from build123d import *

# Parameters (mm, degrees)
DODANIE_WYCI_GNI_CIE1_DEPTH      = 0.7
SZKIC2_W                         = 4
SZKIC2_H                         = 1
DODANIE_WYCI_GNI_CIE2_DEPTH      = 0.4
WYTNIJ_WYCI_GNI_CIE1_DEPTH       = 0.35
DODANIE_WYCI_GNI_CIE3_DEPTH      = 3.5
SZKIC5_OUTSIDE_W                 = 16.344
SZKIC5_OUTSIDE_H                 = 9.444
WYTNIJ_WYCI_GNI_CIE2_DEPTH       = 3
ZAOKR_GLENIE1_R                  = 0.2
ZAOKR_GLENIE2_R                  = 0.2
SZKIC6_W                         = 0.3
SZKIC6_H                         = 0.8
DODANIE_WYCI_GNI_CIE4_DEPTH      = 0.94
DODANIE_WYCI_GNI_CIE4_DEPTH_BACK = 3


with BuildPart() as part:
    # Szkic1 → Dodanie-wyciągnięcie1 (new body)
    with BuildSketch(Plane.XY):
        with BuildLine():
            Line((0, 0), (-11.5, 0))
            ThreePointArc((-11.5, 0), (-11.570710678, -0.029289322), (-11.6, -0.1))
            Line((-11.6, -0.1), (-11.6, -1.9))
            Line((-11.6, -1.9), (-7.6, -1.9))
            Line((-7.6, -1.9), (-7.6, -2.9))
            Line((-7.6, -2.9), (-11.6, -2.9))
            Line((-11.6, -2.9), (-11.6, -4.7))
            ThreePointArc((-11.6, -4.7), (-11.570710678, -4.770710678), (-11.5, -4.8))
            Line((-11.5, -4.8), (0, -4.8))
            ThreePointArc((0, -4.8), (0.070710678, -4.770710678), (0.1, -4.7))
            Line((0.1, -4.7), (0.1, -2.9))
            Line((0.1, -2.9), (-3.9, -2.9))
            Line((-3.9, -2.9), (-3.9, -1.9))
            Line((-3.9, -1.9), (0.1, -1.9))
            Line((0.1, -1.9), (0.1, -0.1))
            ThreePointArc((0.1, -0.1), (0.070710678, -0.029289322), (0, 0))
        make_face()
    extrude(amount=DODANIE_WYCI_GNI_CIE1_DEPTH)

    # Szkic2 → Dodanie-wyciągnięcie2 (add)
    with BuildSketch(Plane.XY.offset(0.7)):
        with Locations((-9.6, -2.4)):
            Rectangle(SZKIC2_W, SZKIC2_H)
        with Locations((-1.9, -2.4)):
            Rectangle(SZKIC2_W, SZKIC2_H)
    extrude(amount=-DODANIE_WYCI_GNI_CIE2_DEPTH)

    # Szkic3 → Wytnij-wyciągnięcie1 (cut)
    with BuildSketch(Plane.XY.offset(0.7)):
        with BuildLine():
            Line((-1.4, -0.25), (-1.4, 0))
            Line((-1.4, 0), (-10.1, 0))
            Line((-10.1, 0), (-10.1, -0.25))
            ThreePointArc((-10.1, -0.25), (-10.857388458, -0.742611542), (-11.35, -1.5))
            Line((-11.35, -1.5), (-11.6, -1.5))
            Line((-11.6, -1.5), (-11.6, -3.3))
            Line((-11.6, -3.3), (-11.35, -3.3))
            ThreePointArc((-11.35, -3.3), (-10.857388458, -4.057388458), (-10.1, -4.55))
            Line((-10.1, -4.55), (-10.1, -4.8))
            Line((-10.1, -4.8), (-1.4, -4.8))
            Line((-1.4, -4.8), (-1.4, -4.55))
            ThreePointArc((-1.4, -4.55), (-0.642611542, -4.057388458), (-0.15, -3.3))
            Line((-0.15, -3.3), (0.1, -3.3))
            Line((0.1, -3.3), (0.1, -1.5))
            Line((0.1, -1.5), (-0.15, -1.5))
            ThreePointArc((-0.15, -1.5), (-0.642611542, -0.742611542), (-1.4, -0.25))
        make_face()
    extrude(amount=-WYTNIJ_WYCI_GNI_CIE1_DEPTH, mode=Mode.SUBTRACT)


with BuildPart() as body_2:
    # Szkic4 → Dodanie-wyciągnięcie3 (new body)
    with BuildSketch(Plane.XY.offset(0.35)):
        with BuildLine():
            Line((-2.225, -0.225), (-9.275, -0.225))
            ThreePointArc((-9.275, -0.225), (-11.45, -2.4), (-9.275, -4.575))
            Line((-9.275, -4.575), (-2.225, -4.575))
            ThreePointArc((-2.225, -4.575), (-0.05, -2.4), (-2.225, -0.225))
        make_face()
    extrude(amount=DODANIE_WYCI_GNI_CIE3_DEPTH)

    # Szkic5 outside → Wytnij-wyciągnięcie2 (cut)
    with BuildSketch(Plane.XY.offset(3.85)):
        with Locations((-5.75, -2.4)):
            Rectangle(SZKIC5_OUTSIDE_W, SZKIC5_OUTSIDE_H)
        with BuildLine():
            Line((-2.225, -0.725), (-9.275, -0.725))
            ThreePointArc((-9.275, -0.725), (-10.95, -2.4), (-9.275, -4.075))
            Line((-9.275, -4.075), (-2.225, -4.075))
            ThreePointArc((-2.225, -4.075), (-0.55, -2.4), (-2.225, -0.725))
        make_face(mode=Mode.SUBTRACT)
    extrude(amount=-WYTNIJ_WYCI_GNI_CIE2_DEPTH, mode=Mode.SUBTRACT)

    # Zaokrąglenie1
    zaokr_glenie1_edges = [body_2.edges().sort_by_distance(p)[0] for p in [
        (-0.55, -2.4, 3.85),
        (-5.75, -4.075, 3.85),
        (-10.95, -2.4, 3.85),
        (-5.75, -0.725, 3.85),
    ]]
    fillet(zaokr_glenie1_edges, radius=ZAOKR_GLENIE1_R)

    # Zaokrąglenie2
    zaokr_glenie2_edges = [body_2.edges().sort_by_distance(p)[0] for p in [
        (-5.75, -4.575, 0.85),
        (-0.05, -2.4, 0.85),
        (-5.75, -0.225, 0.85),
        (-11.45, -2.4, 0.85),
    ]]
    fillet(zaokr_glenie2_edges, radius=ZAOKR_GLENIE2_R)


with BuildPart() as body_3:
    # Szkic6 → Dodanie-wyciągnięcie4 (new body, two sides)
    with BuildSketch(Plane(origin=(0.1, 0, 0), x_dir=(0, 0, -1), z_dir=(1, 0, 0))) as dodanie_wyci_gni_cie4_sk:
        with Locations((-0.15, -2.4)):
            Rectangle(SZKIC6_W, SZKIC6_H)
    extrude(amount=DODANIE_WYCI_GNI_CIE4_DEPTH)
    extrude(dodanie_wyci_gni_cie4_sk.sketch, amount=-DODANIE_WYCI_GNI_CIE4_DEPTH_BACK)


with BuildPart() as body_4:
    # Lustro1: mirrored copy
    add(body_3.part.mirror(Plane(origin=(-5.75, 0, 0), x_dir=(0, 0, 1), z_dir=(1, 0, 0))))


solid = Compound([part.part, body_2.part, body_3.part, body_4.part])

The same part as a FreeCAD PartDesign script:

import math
import FreeCAD as App
import Part
import Sketcher
Q = App.Units.Quantity


def edges_at(feature, points):
    """Names of the edges that pass closest to the given points."""
    edges = feature.Shape.Edges
    near = lambda p: min(range(len(edges)), key=lambda i: edges[i].distToShape(Part.Vertex(*p))[0])
    return sorted({f"Edge{near(p) + 1}" for p in points})

doc = App.newDocument("Part")
body = doc.addObject("PartDesign::Body", "Body")

# Sketch on XY plane
sketch1 = doc.addObject("Sketcher::SketchObject", "Sketch")
body.addObject(sketch1)
sketch1.AttachmentSupport = (doc.XY_Plane, [""])
sketch1.MapMode = "FlatFace"
sketch1.addGeometry([
    Part.LineSegment(App.Vector(0, 0, 0), App.Vector(-11.5, 0, 0)),  # 0
    Part.ArcOfCircle(Part.Circle(App.Vector(-11.5, -0.1, 0), App.Vector(0, 0, 1), 0.1), math.radians(90), math.radians(180)),  # 1
    Part.LineSegment(App.Vector(-11.6, -0.1, 0), App.Vector(-11.6, -1.9, 0)),  # 2
    Part.LineSegment(App.Vector(-11.6, -1.9, 0), App.Vector(-7.6, -1.9, 0)),  # 3
    Part.LineSegment(App.Vector(-7.6, -1.9, 0), App.Vector(-7.6, -2.9, 0)),  # 4
    Part.LineSegment(App.Vector(-7.6, -2.9, 0), App.Vector(-11.6, -2.9, 0)),  # 5
    Part.LineSegment(App.Vector(-11.6, -2.9, 0), App.Vector(-11.6, -4.7, 0)),  # 6
    Part.ArcOfCircle(Part.Circle(App.Vector(-11.5, -4.7, 0), App.Vector(0, 0, 1), 0.1), math.radians(180), math.radians(270)),  # 7
    Part.LineSegment(App.Vector(-11.5, -4.8, 0), App.Vector(0, -4.8, 0)),  # 8
    Part.ArcOfCircle(Part.Circle(App.Vector(0, -4.7, 0), App.Vector(0, 0, 1), 0.1), math.radians(-90), math.radians(0)),  # 9
    Part.LineSegment(App.Vector(0.1, -4.7, 0), App.Vector(0.1, -2.9, 0)),  # 10
    Part.LineSegment(App.Vector(0.1, -2.9, 0), App.Vector(-3.9, -2.9, 0)),  # 11
    Part.LineSegment(App.Vector(-3.9, -2.9, 0), App.Vector(-3.9, -1.9, 0)),  # 12
    Part.LineSegment(App.Vector(-3.9, -1.9, 0), App.Vector(0.1, -1.9, 0)),  # 13
    Part.LineSegment(App.Vector(0.1, -1.9, 0), App.Vector(0.1, -0.1, 0)),  # 14
    Part.ArcOfCircle(Part.Circle(App.Vector(0, -0.1, 0), App.Vector(0, 0, 1), 0.1), math.radians(0), math.radians(90)),  # 15
], False)
sketch1.addConstraint([
    Sketcher.Constraint("Tangent", 0, 2, 1, 1),
    Sketcher.Constraint("Tangent", 1, 2, 2, 1),
    Sketcher.Constraint("Coincident", 2, 2, 3, 1),
    Sketcher.Constraint("Coincident", 3, 2, 4, 1),
    Sketcher.Constraint("Coincident", 4, 2, 5, 1),
    Sketcher.Constraint("Coincident", 5, 2, 6, 1),
    Sketcher.Constraint("Tangent", 6, 2, 7, 1),
    Sketcher.Constraint("Tangent", 7, 2, 8, 1),
    Sketcher.Constraint("Tangent", 8, 2, 9, 1),
    Sketcher.Constraint("Tangent", 9, 2, 10, 1),
    Sketcher.Constraint("Coincident", 10, 2, 11, 1),
    Sketcher.Constraint("Coincident", 11, 2, 12, 1),
    Sketcher.Constraint("Coincident", 12, 2, 13, 1),
    Sketcher.Constraint("Coincident", 13, 2, 14, 1),
    Sketcher.Constraint("Tangent", 14, 2, 15, 1),
    Sketcher.Constraint("Tangent", 15, 2, 0, 1),
    Sketcher.Constraint("Horizontal", 0),
    Sketcher.Constraint("Vertical", 2),
    Sketcher.Constraint("Horizontal", 3),
    Sketcher.Constraint("Vertical", 4),
    Sketcher.Constraint("Horizontal", 5),
    Sketcher.Constraint("Vertical", 6),
    Sketcher.Constraint("Horizontal", 8),
    Sketcher.Constraint("Vertical", 10),
    Sketcher.Constraint("Horizontal", 11),
    Sketcher.Constraint("Vertical", 12),
    Sketcher.Constraint("Horizontal", 13),
    Sketcher.Constraint("Vertical", 14),
    Sketcher.Constraint("Coincident", 15, 2, -1, 1),
    Sketcher.Constraint("Equal", 1, 7),
    Sketcher.Constraint("Equal", 7, 9),
    Sketcher.Constraint("Equal", 9, 15),
    Sketcher.Constraint("PointOnObject", 9, 3, -2),
    Sketcher.Constraint("Horizontal", 5, 2, 10, 2),
    Sketcher.Constraint("Horizontal", 3, 2, 12, 2),
    Sketcher.Constraint("Vertical", 1, 3, 7, 3),
    Sketcher.Constraint("Equal", 5, 11),
    Sketcher.Constraint("Equal", 2, 6),
    Sketcher.Constraint("Radius", 1, Q("0.1 mm")),
    Sketcher.Constraint("DistanceX", 3, 1, 3, 2, Q("4 mm")),
    Sketcher.Constraint("DistanceY", 4, 2, 4, 1, Q("1 mm")),
    Sketcher.Constraint("DistanceX", 0, 2, 0, 1, Q("11.5 mm")),
    Sketcher.Constraint("DistanceY", 2, 2, 2, 1, Q("1.8 mm")),
])
pad1 = doc.addObject("PartDesign::Pad", "Pad")
body.addObject(pad1)
pad1.Profile = sketch1
pad1.Length = 0.7

# Sketch on XY plane
sketch2 = doc.addObject("Sketcher::SketchObject", "Sketch001")
body.addObject(sketch2)
sketch2.AttachmentSupport = (doc.XY_Plane, [""])
sketch2.MapMode = "FlatFace"
sketch2.AttachmentOffset = App.Placement(App.Vector(0, 0, 0.7), App.Rotation())
sketch2.addGeometry([
    Part.LineSegment(App.Vector(-11.6, -1.9, 0), App.Vector(-11.6, -2.9, 0)),  # 0
    Part.LineSegment(App.Vector(-11.6, -2.9, 0), App.Vector(-7.6, -2.9, 0)),  # 1
    Part.LineSegment(App.Vector(-7.6, -2.9, 0), App.Vector(-7.6, -1.9, 0)),  # 2
    Part.LineSegment(App.Vector(-7.6, -1.9, 0), App.Vector(-11.6, -1.9, 0)),  # 3
    Part.LineSegment(App.Vector(-3.9, -1.9, 0), App.Vector(-3.9, -2.9, 0)),  # 4
    Part.LineSegment(App.Vector(-3.9, -2.9, 0), App.Vector(0.1, -2.9, 0)),  # 5
    Part.LineSegment(App.Vector(0.1, -2.9, 0), App.Vector(0.1, -1.9, 0)),  # 6
    Part.LineSegment(App.Vector(0.1, -1.9, 0), App.Vector(-3.9, -1.9, 0)),  # 7
], False)
sketch2.addConstraint([
    Sketcher.Constraint("Coincident", 0, 2, 1, 1),
    Sketcher.Constraint("Coincident", 1, 2, 2, 1),
    Sketcher.Constraint("Coincident", 2, 2, 3, 1),
    Sketcher.Constraint("Coincident", 3, 2, 0, 1),
    Sketcher.Constraint("Coincident", 4, 2, 5, 1),
    Sketcher.Constraint("Coincident", 5, 2, 6, 1),
    Sketcher.Constraint("Coincident", 6, 2, 7, 1),
    Sketcher.Constraint("Coincident", 7, 2, 4, 1),
    Sketcher.Constraint("Vertical", 0),
    Sketcher.Constraint("Horizontal", 1),
    Sketcher.Constraint("Vertical", 2),
    Sketcher.Constraint("Horizontal", 3),
    Sketcher.Constraint("Vertical", 4),
    Sketcher.Constraint("Horizontal", 5),
    Sketcher.Constraint("Vertical", 6),
    Sketcher.Constraint("Horizontal", 7),
    Sketcher.Constraint("Horizontal", 1, 2, 4, 2),
    Sketcher.Constraint("Horizontal", 3, 2, 6, 2),
    Sketcher.Constraint("Equal", 3, 5),
    Sketcher.Constraint("DistanceX", 1, 1, 1, 2, Q("4 mm")),
    Sketcher.Constraint("DistanceY", 0, 2, 0, 1, Q("1 mm")),
    Sketcher.Constraint("DistanceX", 0, 2, -1, 1, Q("11.6 mm")),
    Sketcher.Constraint("DistanceY", 0, 2, -1, 1, Q("2.9 mm")),
    Sketcher.Constraint("DistanceX", 4, 2, -1, 1, Q("3.9 mm")),
])
pad2 = doc.addObject("PartDesign::Pad", "Pad001")
body.addObject(pad2)
pad2.Profile = sketch2
pad2.Length = 0.4
pad2.Reversed = True

# Sketch on XY plane
sketch3 = doc.addObject("Sketcher::SketchObject", "Sketch002")
body.addObject(sketch3)
sketch3.AttachmentSupport = (doc.XY_Plane, [""])
sketch3.MapMode = "FlatFace"
sketch3.AttachmentOffset = App.Placement(App.Vector(0, 0, 0.7), App.Rotation())
sketch3.addGeometry([
    Part.LineSegment(App.Vector(-1.4, -0.25, 0), App.Vector(-1.4, 0, 0)),  # 0
    Part.LineSegment(App.Vector(-1.4, 0, 0), App.Vector(-10.1, 0, 0)),  # 1
    Part.LineSegment(App.Vector(-10.1, 0, 0), App.Vector(-10.1, -0.25, 0)),  # 2
    Part.ArcOfCircle(Part.Circle(App.Vector(-9.315896, -2.284104, 0), App.Vector(0, 0, 1), 2.18), math.radians(111.080599), math.radians(158.919401)),  # 3
    Part.LineSegment(App.Vector(-11.35, -1.5, 0), App.Vector(-11.6, -1.5, 0)),  # 4
    Part.LineSegment(App.Vector(-11.6, -1.5, 0), App.Vector(-11.6, -3.3, 0)),  # 5
    Part.LineSegment(App.Vector(-11.6, -3.3, 0), App.Vector(-11.35, -3.3, 0)),  # 6
    Part.ArcOfCircle(Part.Circle(App.Vector(-9.315896, -2.515896, 0), App.Vector(0, 0, 1), 2.18), math.radians(-158.919401), math.radians(-111.080599)),  # 7
    Part.LineSegment(App.Vector(-10.1, -4.55, 0), App.Vector(-10.1, -4.8, 0)),  # 8
    Part.LineSegment(App.Vector(-10.1, -4.8, 0), App.Vector(-1.4, -4.8, 0)),  # 9
    Part.LineSegment(App.Vector(-1.4, -4.8, 0), App.Vector(-1.4, -4.55, 0)),  # 10
    Part.ArcOfCircle(Part.Circle(App.Vector(-2.184104, -2.515896, 0), App.Vector(0, 0, 1), 2.18), math.radians(-68.919401), math.radians(-21.080599)),  # 11
    Part.LineSegment(App.Vector(-0.15, -3.3, 0), App.Vector(0.1, -3.3, 0)),  # 12
    Part.LineSegment(App.Vector(0.1, -3.3, 0), App.Vector(0.1, -1.5, 0)),  # 13
    Part.LineSegment(App.Vector(0.1, -1.5, 0), App.Vector(-0.15, -1.5, 0)),  # 14
    Part.ArcOfCircle(Part.Circle(App.Vector(-2.184104, -2.284104, 0), App.Vector(0, 0, 1), 2.18), math.radians(21.080599), math.radians(68.919401)),  # 15
], False)
sketch3.addConstraint([
    Sketcher.Constraint("Coincident", 0, 2, 1, 1),
    Sketcher.Constraint("Coincident", 1, 2, 2, 1),
    Sketcher.Constraint("Coincident", 2, 2, 3, 1),
    Sketcher.Constraint("Coincident", 3, 2, 4, 1),
    Sketcher.Constraint("Coincident", 4, 2, 5, 1),
    Sketcher.Constraint("Coincident", 5, 2, 6, 1),
    Sketcher.Constraint("Coincident", 6, 2, 7, 1),
    Sketcher.Constraint("Coincident", 7, 2, 8, 1),
    Sketcher.Constraint("Coincident", 8, 2, 9, 1),
    Sketcher.Constraint("Coincident", 9, 2, 10, 1),
    Sketcher.Constraint("Coincident", 10, 2, 11, 1),
    Sketcher.Constraint("Coincident", 11, 2, 12, 1),
    Sketcher.Constraint("Coincident", 12, 2, 13, 1),
    Sketcher.Constraint("Coincident", 13, 2, 14, 1),
    Sketcher.Constraint("Coincident", 14, 2, 15, 1),
    Sketcher.Constraint("Coincident", 15, 2, 0, 1),
    Sketcher.Constraint("Vertical", 0),
    Sketcher.Constraint("Horizontal", 1),
    Sketcher.Constraint("Vertical", 2),
    Sketcher.Constraint("Horizontal", 4),
    Sketcher.Constraint("Vertical", 5),
    Sketcher.Constraint("Horizontal", 6),
    Sketcher.Constraint("Vertical", 8),
    Sketcher.Constraint("Horizontal", 9),
    Sketcher.Constraint("Vertical", 10),
    Sketcher.Constraint("Horizontal", 12),
    Sketcher.Constraint("Vertical", 13),
    Sketcher.Constraint("Horizontal", 14),
    Sketcher.Constraint("Equal", 3, 7),
    Sketcher.Constraint("Equal", 7, 11),
    Sketcher.Constraint("Equal", 11, 15),
    Sketcher.Constraint("PointOnObject", 0, 2, -1),
    Sketcher.Constraint("Horizontal", 7, 3, 11, 3),
    Sketcher.Constraint("Horizontal", 3, 3, 15, 3),
    Sketcher.Constraint("Horizontal", 7, 2, 10, 2),
    Sketcher.Constraint("Horizontal", 6, 2, 11, 2),
    Sketcher.Constraint("Horizontal", 4, 2, 13, 2),
    Sketcher.Constraint("Horizontal", 2, 2, 15, 2),
    Sketcher.Constraint("Vertical", 3, 3, 7, 3),
    Sketcher.Constraint("Vertical", 11, 3, 15, 3),
    Sketcher.Constraint("Vertical", 3, 2, 6, 2),
    Sketcher.Constraint("Vertical", 2, 2, 7, 2),
    Sketcher.Constraint("Equal", 6, 12),
    Sketcher.Constraint("Equal", 14, 0),
    Sketcher.Constraint("Equal", 2, 8),
    Sketcher.Constraint("Radius", 3, Q("2.18 mm")),
    Sketcher.Constraint("DistanceX", 1, 2, 1, 1, Q("8.7 mm")),
    Sketcher.Constraint("DistanceY", 5, 2, 5, 1, Q("1.8 mm")),
    Sketcher.Constraint("DistanceX", 4, 2, 4, 1, Q("0.25 mm")),
    Sketcher.Constraint("DistanceX", 0, 2, -1, 1, Q("1.4 mm")),
    Sketcher.Constraint("DistanceY", 3, 2, -1, 1, Q("1.5 mm")),
    Sketcher.Constraint("DistanceX", 4, 2, -1, 1, Q("11.6 mm")),
])
pocket1 = doc.addObject("PartDesign::Pocket", "Pocket")
body.addObject(pocket1)
pocket1.Profile = sketch3
pocket1.Length = 0.35
body2 = doc.addObject("PartDesign::Body", "Body001")

# Sketch on XY plane
sketch4 = doc.addObject("Sketcher::SketchObject", "Sketch003")
body2.addObject(sketch4)
sketch4.AttachmentSupport = (doc.getObject("XY_Plane001"), [""])
sketch4.MapMode = "FlatFace"
sketch4.AttachmentOffset = App.Placement(App.Vector(0, 0, 0.35), App.Rotation())
sketch4.addGeometry([
    Part.LineSegment(App.Vector(-2.225, -0.225, 0), App.Vector(-9.275, -0.225, 0)),
    Part.ArcOfCircle(Part.Circle(App.Vector(-9.275, -2.4, 0), App.Vector(0, 0, 1), 2.175), math.radians(90), math.radians(270)),
    Part.LineSegment(App.Vector(-9.275, -4.575, 0), App.Vector(-2.225, -4.575, 0)),
    Part.ArcOfCircle(Part.Circle(App.Vector(-2.225, -2.4, 0), App.Vector(0, 0, 1), 2.175), math.radians(-90), math.radians(90)),
], False)
sketch4.addConstraint([
    Sketcher.Constraint("Tangent", 0, 2, 1, 1),
    Sketcher.Constraint("Tangent", 1, 2, 2, 1),
    Sketcher.Constraint("Tangent", 2, 2, 3, 1),
    Sketcher.Constraint("Tangent", 3, 2, 0, 1),
    Sketcher.Constraint("Horizontal", 0),
    Sketcher.Constraint("Horizontal", 2),
    Sketcher.Constraint("Radius", 1, Q("2.175 mm")),
    Sketcher.Constraint("DistanceX", 0, 2, 0, 1, Q("7.05 mm")),
    Sketcher.Constraint("DistanceY", 1, 3, -1, 1, Q("2.4 mm")),
    Sketcher.Constraint("DistanceX", 1, 3, -1, 1, Q("9.275 mm")),
])
pad3 = doc.addObject("PartDesign::Pad", "Pad002")
body2.addObject(pad3)
pad3.Profile = sketch4
pad3.Length = 3.5

# Sketch on XY plane
sketch5 = doc.addObject("Sketcher::SketchObject", "Sketch004")
body2.addObject(sketch5)
sketch5.AttachmentSupport = (doc.getObject("XY_Plane001"), [""])
sketch5.MapMode = "FlatFace"
sketch5.AttachmentOffset = App.Placement(App.Vector(0, 0, 3.85), App.Rotation())
sketch5.addGeometry([
    Part.LineSegment(App.Vector(-13.922, 2.322, 0), App.Vector(-13.922, -7.122, 0)),  # 0
    Part.LineSegment(App.Vector(-13.922, -7.122, 0), App.Vector(2.422, -7.122, 0)),  # 1
    Part.LineSegment(App.Vector(2.422, -7.122, 0), App.Vector(2.422, 2.322, 0)),  # 2
    Part.LineSegment(App.Vector(2.422, 2.322, 0), App.Vector(-13.922, 2.322, 0)),  # 3
    Part.LineSegment(App.Vector(-9.275, -0.725, 0), App.Vector(-2.225, -0.725, 0)),  # 4
    Part.ArcOfCircle(Part.Circle(App.Vector(-2.225, -2.4, 0), App.Vector(0, 0, 1), 1.675), math.radians(-90), math.radians(90)),  # 5
    Part.LineSegment(App.Vector(-2.225, -4.075, 0), App.Vector(-9.275, -4.075, 0)),  # 6
    Part.ArcOfCircle(Part.Circle(App.Vector(-9.275, -2.4, 0), App.Vector(0, 0, 1), 1.675), math.radians(90), math.radians(270)),  # 7
], False)
sketch5.addConstraint([
    Sketcher.Constraint("Coincident", 0, 2, 1, 1),
    Sketcher.Constraint("Coincident", 1, 2, 2, 1),
    Sketcher.Constraint("Coincident", 2, 2, 3, 1),
    Sketcher.Constraint("Coincident", 3, 2, 0, 1),
    Sketcher.Constraint("Tangent", 4, 2, 5, 2),
    Sketcher.Constraint("Tangent", 5, 1, 6, 1),
    Sketcher.Constraint("Tangent", 6, 2, 7, 2),
    Sketcher.Constraint("Tangent", 7, 1, 4, 1),
    Sketcher.Constraint("Vertical", 0),
    Sketcher.Constraint("Horizontal", 1),
    Sketcher.Constraint("Vertical", 2),
    Sketcher.Constraint("Horizontal", 3),
    Sketcher.Constraint("Horizontal", 4),
    Sketcher.Constraint("Horizontal", 6),
    Sketcher.Constraint("Radius", 5, Q("1.675 mm")),
    Sketcher.Constraint("DistanceX", 4, 1, 4, 2, Q("7.05 mm")),
    Sketcher.Constraint("DistanceY", 5, 3, -1, 1, Q("2.4 mm")),
    Sketcher.Constraint("DistanceX", 1, 1, 1, 2, Q("16.344 mm")),
    Sketcher.Constraint("DistanceY", 0, 2, 0, 1, Q("9.444 mm")),
    Sketcher.Constraint("DistanceX", 5, 3, -1, 1, Q("2.225 mm")),
    Sketcher.Constraint("DistanceX", 0, 2, -1, 1, Q("13.922 mm")),
    Sketcher.Constraint("DistanceY", 0, 2, -1, 1, Q("7.122 mm")),
])
pocket2 = doc.addObject("PartDesign::Pocket", "Pocket001")
body2.addObject(pocket2)
pocket2.Profile = sketch5
pocket2.Length = 3
doc.recompute()

fillet = doc.addObject("PartDesign::Fillet", "Fillet")
body2.addObject(fillet)
fillet.Base = (pocket2, edges_at(pocket2, [
    (-0.55, -2.4, 3.85),
    (-5.75, -4.075, 3.85),
    (-10.95, -2.4, 3.85),
    (-5.75, -0.725, 3.85),
]))
fillet.Radius = 0.2
doc.recompute()

fillet2 = doc.addObject("PartDesign::Fillet", "Fillet001")
body2.addObject(fillet2)
fillet2.Base = (fillet, edges_at(fillet, [
    (-5.75, -4.575, 0.85),
    (-0.05, -2.4, 0.85),
    (-5.75, -0.225, 0.85),
    (-11.45, -2.4, 0.85),
]))
fillet2.Radius = 0.2
body3 = doc.addObject("PartDesign::Body", "Body002")

# Sketch on YZ plane
sketch6 = doc.addObject("Sketcher::SketchObject", "Sketch005")
body3.addObject(sketch6)
sketch6.AttachmentSupport = (doc.getObject("YZ_Plane002"), [""])
sketch6.MapMode = "FlatFace"
sketch6.AttachmentOffset = App.Placement(App.Vector(0, 0, 0.1), App.Rotation())
sketch6.addGeometry([
    Part.LineSegment(App.Vector(-2, 0.3, 0), App.Vector(-2.8, 0.3, 0)),
    Part.LineSegment(App.Vector(-2.8, 0.3, 0), App.Vector(-2.8, 0, 0)),
    Part.LineSegment(App.Vector(-2.8, 0, 0), App.Vector(-2, 0, 0)),
    Part.LineSegment(App.Vector(-2, 0, 0), App.Vector(-2, 0.3, 0)),
], False)
sketch6.addConstraint([
    Sketcher.Constraint("Coincident", 0, 2, 1, 1),
    Sketcher.Constraint("Coincident", 1, 2, 2, 1),
    Sketcher.Constraint("Coincident", 2, 2, 3, 1),
    Sketcher.Constraint("Coincident", 3, 2, 0, 1),
    Sketcher.Constraint("Horizontal", 0),
    Sketcher.Constraint("Vertical", 1),
    Sketcher.Constraint("Horizontal", 2),
    Sketcher.Constraint("Vertical", 3),
    Sketcher.Constraint("PointOnObject", 1, 2, -1),
    Sketcher.Constraint("DistanceX", 0, 2, 0, 1, Q("0.8 mm")),
    Sketcher.Constraint("DistanceY", 1, 2, 1, 1, Q("0.3 mm")),
    Sketcher.Constraint("DistanceX", 2, 2, -1, 1, Q("2 mm")),
])
pad4 = doc.addObject("PartDesign::Pad", "Pad003")
body3.addObject(pad4)
pad4.Profile = sketch6
pad4.Type = "TwoLengths"
pad4.Length = 0.94
pad4.Length2 = 3
body4 = doc.addObject("PartDesign::Body", "Body003")
doc.recompute()

mirroring = doc.addObject("Part::Mirroring", "Mirroring")
mirroring.Source = body3
mirroring.Base = App.Vector(-5.75, 0, 0)
mirroring.Normal = App.Vector(1, 0, 0)
body4.BaseFeature = mirroring
doc.recompute()
mirroring.Visibility = False

doc.recompute()
